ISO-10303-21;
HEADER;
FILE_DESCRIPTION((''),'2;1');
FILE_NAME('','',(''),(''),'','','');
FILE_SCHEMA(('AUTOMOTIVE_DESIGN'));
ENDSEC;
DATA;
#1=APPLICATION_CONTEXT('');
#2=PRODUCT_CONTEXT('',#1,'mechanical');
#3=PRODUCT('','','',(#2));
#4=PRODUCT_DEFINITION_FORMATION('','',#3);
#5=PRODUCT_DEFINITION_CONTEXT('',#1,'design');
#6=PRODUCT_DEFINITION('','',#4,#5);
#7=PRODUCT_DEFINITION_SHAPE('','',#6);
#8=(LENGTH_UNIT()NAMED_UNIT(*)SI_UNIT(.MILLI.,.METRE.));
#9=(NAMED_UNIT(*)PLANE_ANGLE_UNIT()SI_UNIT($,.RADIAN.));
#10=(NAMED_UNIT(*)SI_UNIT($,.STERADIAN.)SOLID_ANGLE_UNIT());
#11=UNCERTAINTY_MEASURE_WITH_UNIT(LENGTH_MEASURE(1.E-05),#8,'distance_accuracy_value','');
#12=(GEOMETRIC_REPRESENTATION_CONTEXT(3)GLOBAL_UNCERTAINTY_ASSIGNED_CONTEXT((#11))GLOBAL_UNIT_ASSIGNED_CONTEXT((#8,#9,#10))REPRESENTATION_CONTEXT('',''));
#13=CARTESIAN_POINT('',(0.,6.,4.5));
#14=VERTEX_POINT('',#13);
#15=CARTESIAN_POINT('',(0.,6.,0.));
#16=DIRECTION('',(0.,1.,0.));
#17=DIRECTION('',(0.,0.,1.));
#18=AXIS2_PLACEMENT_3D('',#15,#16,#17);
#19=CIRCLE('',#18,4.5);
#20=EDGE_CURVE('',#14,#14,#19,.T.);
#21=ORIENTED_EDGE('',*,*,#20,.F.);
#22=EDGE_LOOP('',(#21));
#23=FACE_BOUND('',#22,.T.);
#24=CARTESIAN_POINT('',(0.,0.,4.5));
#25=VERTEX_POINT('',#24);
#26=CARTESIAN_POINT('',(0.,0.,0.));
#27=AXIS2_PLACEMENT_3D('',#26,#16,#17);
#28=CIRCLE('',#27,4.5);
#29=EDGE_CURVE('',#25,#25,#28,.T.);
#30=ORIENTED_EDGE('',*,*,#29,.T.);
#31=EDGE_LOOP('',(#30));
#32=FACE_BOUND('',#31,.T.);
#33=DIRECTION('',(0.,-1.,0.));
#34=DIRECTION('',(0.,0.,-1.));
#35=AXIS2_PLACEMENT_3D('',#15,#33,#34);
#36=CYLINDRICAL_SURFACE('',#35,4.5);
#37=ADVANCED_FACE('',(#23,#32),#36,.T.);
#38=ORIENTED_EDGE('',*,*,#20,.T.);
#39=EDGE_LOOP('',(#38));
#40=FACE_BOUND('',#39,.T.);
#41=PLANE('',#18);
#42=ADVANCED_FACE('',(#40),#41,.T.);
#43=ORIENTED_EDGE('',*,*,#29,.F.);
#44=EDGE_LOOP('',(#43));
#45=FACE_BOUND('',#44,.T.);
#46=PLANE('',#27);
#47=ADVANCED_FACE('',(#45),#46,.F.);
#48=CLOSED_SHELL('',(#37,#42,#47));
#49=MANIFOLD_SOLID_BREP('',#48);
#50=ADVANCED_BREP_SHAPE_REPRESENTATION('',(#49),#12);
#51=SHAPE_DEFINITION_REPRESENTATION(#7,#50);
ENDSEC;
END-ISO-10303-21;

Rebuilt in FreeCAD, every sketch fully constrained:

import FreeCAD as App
import Part
import Sketcher
Q = App.Units.Quantity

doc = App.newDocument("Part")
params = doc.addObject("Spreadsheet::Sheet", "Params")
for row, (alias, value) in enumerate([
    ("sketch1_diameter", "9 mm"),
    ("pad1_length", "6 mm"),
], start=1):
    params.set(f"A{row}", alias)
    params.set(f"B{row}", "=" + value)
    params.setAlias(f"B{row}", alias)

body = doc.addObject("PartDesign::Body", "Body")

sketch1 = body.newObject("Sketcher::SketchObject", "Sketch")
sketch1.AttachmentSupport = (doc.getObject("XZ_Plane"), [""])
sketch1.MapMode = "FlatFace"
sketch1.addGeometry(Part.Circle(App.Vector(0, 0, 0), App.Vector(0, 0, 1), 4.5), False)
sketch1.addConstraint([
    Sketcher.Constraint("Coincident", 0, 3, -1, 1),
    Sketcher.Constraint("Diameter", 0, Q("9 mm")),
])
sketch1.setExpression("Constraints[1]", "Params.sketch1_diameter")
pad1 = body.newObject("PartDesign::Pad", "Pad")
pad1.Profile = sketch1
pad1.setExpression("Length", "Params.pad1_length")
pad1.Reversed = True

doc.recompute()
